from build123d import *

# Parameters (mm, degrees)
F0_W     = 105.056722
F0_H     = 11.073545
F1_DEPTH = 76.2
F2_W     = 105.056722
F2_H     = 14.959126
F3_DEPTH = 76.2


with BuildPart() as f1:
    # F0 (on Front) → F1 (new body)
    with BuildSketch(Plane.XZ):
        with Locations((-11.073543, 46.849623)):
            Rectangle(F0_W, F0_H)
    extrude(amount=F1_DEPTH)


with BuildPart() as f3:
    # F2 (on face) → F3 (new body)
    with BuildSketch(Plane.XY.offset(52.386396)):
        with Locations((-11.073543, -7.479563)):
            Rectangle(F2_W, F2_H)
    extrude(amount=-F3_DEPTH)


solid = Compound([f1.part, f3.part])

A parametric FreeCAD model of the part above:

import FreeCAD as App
import Part
import Sketcher
from FreeCAD import Vector
Q = App.Units.Quantity

doc = App.newDocument("Part")
params = doc.addObject("Spreadsheet::Sheet", "Params")
for row, (alias, value) in enumerate([
    ("pad1_length", "3 in"),
    ("pad2_length", "3 in"),
], start=1):
    params.set(f"A{row}", alias)
    params.set(f"B{row}", "=" + value)
    params.setAlias(f"B{row}", alias)

body = doc.addObject("PartDesign::Body", "Body")

# Sketch on XZ plane
sketch1 = doc.addObject("Sketcher::SketchObject", "Sketch")
body.addObject(sketch1)
sketch1.AttachmentSupport = (doc.XZ_Plane, [""])
sketch1.MapMode = "FlatFace"
sketch1.addGeometry([
    Part.LineSegment(Vector(-64, 52, 0), Vector(-64, 41, 0)),
    Part.LineSegment(Vector(-64, 41, 0), Vector(41, 41, 0)),
    Part.LineSegment(Vector(41, 41, 0), Vector(41, 52, 0)),
    Part.LineSegment(Vector(41, 52, 0), Vector(-64, 52, 0)),
], False)
sketch1.addConstraint([
    Sketcher.Constraint("Coincident", 0, 2, 1, 1),
    Sketcher.Constraint("Coincident", 1, 2, 2, 1),
    Sketcher.Constraint("Coincident", 2, 2, 3, 1),
    Sketcher.Constraint("Coincident", 3, 2, 0, 1),
    Sketcher.Constraint("Vertical", 0),
    Sketcher.Constraint("Horizontal", 1),
    Sketcher.Constraint("Vertical", 2),
    Sketcher.Constraint("Horizontal", 3),
    Sketcher.Constraint("DistanceX", 1, 1, 1, 2, Q("105.056722 mm")),
    Sketcher.Constraint("DistanceY", 0, 2, 0, 1, Q("11.073545 mm")),
    Sketcher.Constraint("DistanceY", -1, 1, 0, 2, Q("41.312851 mm")),
    Sketcher.Constraint("DistanceX", -1, 1, 1, 2, Q("41.454818 mm")),
])
pad1 = doc.addObject("PartDesign::Pad", "Pad")
body.addObject(pad1)
pad1.Profile = sketch1
pad1.setExpression("Length", "Params.pad1_length")
body2 = doc.addObject("PartDesign::Body", "Body001")

# Sketch on XY plane
sketch2 = doc.addObject("Sketcher::SketchObject", "Sketch001")
body2.addObject(sketch2)
sketch2.AttachmentSupport = (doc.getObject("XY_Plane001"), [""])
sketch2.MapMode = "FlatFace"
sketch2.AttachmentOffset = App.Placement(Vector(0, 0, 52.386396), App.Rotation())
sketch2.addGeometry([
    Part.LineSegment(Vector(-64, 0, 0), Vector(-64, -15, 0)),
    Part.LineSegment(Vector(-64, -15, 0), Vector(41, -15, 0)),
    Part.LineSegment(Vector(41, -15, 0), Vector(41, 0, 0)),
    Part.LineSegment(Vector(41, 0, 0), Vector(-64, 0, 0)),
], False)
sketch2.addConstraint([
    Sketcher.Constraint("Coincident", 0, 2, 1, 1),
    Sketcher.Constraint("Coincident", 1, 2, 2, 1),
    Sketcher.Constraint("Coincident", 2, 2, 3, 1),
    Sketcher.Constraint("Coincident", 3, 2, 0, 1),
    Sketcher.Constraint("Vertical", 0),
    Sketcher.Constraint("Horizontal", 1),
    Sketcher.Constraint("Vertical", 2),
    Sketcher.Constraint("Horizontal", 3),
    Sketcher.Constraint("PointOnObject", 2, 2, -1),
    Sketcher.Constraint("DistanceX", 1, 1, 1, 2, Q("105.056722 mm")),
    Sketcher.Constraint("DistanceY", 0, 2, 0, 1, Q("14.959126 mm")),
    Sketcher.Constraint("DistanceX", -1, 1, 1, 2, Q("41.454818 mm")),
])
pad2 = doc.addObject("PartDesign::Pad", "Pad001")
body2.addObject(pad2)
pad2.Profile = sketch2
pad2.setExpression("Length", "Params.pad2_length")
pad2.Reversed = True

doc.recompute()
